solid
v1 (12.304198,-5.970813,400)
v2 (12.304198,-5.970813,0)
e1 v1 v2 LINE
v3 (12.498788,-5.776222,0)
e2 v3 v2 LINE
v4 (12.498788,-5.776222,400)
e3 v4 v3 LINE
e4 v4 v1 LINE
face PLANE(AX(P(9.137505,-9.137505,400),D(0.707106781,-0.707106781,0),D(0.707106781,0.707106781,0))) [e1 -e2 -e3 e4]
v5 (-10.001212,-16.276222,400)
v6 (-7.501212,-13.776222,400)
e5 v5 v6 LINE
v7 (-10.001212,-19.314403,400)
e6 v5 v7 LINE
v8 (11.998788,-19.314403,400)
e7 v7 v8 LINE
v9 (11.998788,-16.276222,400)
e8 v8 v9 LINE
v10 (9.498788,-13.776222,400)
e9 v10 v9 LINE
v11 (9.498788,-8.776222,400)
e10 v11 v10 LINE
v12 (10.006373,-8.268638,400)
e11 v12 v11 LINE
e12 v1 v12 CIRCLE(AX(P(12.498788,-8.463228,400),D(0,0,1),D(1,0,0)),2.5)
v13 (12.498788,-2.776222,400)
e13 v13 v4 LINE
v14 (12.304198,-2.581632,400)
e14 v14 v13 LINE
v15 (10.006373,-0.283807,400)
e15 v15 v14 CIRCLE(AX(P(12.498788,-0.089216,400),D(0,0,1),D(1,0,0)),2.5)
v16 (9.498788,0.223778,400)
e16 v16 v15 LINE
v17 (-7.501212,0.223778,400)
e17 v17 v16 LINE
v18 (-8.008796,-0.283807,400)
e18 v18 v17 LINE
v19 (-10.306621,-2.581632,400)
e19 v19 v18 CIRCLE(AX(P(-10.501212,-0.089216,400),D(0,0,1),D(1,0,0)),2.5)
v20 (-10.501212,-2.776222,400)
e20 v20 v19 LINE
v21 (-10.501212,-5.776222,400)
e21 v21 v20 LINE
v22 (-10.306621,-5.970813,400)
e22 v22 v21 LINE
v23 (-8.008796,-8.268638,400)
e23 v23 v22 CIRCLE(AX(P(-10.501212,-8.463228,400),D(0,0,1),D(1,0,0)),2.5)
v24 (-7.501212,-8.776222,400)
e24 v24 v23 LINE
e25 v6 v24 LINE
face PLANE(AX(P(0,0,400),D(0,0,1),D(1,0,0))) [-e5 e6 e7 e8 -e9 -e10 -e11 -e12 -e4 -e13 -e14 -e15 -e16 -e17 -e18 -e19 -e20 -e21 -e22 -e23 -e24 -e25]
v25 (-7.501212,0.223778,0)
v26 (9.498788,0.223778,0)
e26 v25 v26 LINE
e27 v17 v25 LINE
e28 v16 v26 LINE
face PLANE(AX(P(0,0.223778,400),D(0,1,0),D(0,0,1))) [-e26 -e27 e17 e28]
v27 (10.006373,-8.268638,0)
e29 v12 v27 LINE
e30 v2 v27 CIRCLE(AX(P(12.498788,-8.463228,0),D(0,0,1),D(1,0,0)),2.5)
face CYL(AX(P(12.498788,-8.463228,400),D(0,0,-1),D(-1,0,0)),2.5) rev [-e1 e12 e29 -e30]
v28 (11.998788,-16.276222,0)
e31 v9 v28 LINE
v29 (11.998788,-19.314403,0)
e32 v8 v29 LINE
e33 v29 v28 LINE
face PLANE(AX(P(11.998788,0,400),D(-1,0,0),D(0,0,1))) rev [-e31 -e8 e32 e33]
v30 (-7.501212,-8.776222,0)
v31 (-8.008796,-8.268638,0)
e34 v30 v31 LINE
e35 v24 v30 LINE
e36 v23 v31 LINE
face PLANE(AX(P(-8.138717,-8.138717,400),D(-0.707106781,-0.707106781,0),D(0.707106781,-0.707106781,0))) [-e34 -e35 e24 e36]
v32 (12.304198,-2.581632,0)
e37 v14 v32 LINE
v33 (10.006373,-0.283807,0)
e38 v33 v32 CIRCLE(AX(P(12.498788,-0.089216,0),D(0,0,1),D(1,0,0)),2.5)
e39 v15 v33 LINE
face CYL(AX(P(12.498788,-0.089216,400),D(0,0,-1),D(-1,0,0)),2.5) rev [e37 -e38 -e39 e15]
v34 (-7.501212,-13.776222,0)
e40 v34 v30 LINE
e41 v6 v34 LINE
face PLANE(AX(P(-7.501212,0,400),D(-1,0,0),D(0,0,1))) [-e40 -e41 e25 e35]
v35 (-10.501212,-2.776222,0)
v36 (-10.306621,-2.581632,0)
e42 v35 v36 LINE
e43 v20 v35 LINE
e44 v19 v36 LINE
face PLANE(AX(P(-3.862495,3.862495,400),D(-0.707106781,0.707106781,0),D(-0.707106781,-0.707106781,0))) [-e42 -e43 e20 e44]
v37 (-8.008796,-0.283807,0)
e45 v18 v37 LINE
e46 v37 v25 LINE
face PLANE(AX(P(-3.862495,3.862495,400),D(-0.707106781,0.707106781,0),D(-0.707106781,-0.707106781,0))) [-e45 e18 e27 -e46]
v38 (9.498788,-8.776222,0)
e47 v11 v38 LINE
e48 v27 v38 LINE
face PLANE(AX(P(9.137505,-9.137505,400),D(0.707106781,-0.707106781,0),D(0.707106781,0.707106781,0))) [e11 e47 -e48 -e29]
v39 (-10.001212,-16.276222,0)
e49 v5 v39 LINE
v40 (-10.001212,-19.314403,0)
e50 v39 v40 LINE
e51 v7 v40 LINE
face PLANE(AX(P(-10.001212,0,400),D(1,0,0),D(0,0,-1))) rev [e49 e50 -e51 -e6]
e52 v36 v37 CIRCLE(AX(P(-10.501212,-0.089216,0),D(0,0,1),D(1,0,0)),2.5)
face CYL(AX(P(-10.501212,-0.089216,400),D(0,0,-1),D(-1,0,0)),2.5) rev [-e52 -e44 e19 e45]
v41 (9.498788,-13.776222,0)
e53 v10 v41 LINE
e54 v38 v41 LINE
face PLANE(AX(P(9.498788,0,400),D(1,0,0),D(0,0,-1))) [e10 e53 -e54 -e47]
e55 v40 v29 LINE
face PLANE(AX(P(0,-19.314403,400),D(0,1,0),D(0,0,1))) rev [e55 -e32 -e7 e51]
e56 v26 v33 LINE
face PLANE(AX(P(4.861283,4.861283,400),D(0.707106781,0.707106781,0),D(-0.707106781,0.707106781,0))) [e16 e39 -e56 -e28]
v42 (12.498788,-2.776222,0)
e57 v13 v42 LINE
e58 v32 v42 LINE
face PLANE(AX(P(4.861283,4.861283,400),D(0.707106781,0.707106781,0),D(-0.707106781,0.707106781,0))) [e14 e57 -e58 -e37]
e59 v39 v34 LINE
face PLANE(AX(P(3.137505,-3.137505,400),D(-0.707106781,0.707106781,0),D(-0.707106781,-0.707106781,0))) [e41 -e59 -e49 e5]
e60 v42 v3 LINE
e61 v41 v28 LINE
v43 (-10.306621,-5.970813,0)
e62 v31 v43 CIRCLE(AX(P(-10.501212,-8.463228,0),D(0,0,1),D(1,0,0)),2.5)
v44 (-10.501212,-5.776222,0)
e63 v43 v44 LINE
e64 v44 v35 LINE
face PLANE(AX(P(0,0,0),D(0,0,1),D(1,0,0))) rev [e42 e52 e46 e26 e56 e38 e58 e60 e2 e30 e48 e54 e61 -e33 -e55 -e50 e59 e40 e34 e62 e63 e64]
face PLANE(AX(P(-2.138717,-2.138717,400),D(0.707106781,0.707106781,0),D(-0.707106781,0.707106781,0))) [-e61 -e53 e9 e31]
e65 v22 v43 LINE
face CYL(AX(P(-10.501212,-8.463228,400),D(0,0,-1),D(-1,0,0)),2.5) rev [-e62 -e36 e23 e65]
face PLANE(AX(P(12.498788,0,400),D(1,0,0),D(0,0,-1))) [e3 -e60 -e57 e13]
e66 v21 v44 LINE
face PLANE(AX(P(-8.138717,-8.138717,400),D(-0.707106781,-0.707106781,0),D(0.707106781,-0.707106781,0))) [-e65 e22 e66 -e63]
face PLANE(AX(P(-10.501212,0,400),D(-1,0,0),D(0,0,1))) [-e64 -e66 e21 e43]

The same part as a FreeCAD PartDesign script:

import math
import FreeCAD as App
import Part
import Sketcher
from FreeCAD import Vector
Q = App.Units.Quantity

doc = App.newDocument("Part")
params = doc.addObject("Spreadsheet::Sheet", "Params")
for row, (alias, value) in enumerate([
    ("sketch1_radius", "2.5 mm"),
    ("sketch1_width", "22 mm"),
    ("sketch1_width2", "17 mm"),
    ("sketch1_height", "5 mm"),
    ("sketch1_height2", "3 mm"),
    ("pad1_length", "400 mm"),
], start=1):
    params.set(f"A{row}", alias)
    params.set(f"B{row}", "=" + value)
    params.setAlias(f"B{row}", alias)

body = doc.addObject("PartDesign::Body", "Body")

# Sketch on XY plane
sketch1 = body.newObject("Sketcher::SketchObject", "Sketch")
sketch1.AttachmentSupport = (doc.getObject("XY_Plane"), [""])
sketch1.MapMode = "FlatFace"
sketch1.addGeometry([
    Part.LineSegment(Vector(-7.5, -13.78, 0), Vector(-10, -16.28, 0)),  # 0
    Part.LineSegment(Vector(-10, -16.28, 0), Vector(-10, -19.31, 0)),  # 1
    Part.LineSegment(Vector(-10, -19.31, 0), Vector(12, -19.31, 0)),  # 2
    Part.LineSegment(Vector(12, -19.31, 0), Vector(12, -16.28, 0)),  # 3
    Part.LineSegment(Vector(12, -16.28, 0), Vector(9.5, -13.78, 0)),  # 4
    Part.LineSegment(Vector(9.5, -13.78, 0), Vector(9.5, -8.78, 0)),  # 5
    Part.LineSegment(Vector(9.5, -8.78, 0), Vector(10.01, -8.27, 0)),  # 6
    Part.ArcOfCircle(Part.Circle(Vector(12.5, -8.46, 0), Vector(0, 0, 1), 2.5), math.radians(94), math.radians(176)),  # 7
    Part.LineSegment(Vector(12.3, -5.97, 0), Vector(12.5, -5.78, 0)),  # 8
    Part.LineSegment(Vector(12.5, -5.78, 0), Vector(12.5, -2.78, 0)),  # 9
    Part.LineSegment(Vector(12.5, -2.78, 0), Vector(12.3, -2.58, 0)),  # 10
    Part.ArcOfCircle(Part.Circle(Vector(12.5, -0.09, 0), Vector(0, 0, 1), 2.5), math.radians(-176), math.radians(-94)),  # 11
    Part.LineSegment(Vector(10.01, -0.28, 0), Vector(9.5, 0.22, 0)),  # 12
    Part.LineSegment(Vector(9.5, 0.22, 0), Vector(-7.5, 0.22, 0)),  # 13
    Part.LineSegment(Vector(-7.5, 0.22, 0), Vector(-8.01, -0.28, 0)),  # 14
    Part.ArcOfCircle(Part.Circle(Vector(-10.5, -0.09, 0), Vector(0, 0, 1), 2.5), math.radians(-86), math.radians(-4)),  # 15
    Part.LineSegment(Vector(-10.31, -2.58, 0), Vector(-10.5, -2.78, 0)),  # 16
    Part.LineSegment(Vector(-10.5, -2.78, 0), Vector(-10.5, -5.78, 0)),  # 17
    Part.LineSegment(Vector(-10.5, -5.78, 0), Vector(-10.31, -5.97, 0)),  # 18
    Part.ArcOfCircle(Part.Circle(Vector(-10.5, -8.46, 0), Vector(0, 0, 1), 2.5), math.radians(4), math.radians(86)),  # 19
    Part.LineSegment(Vector(-8.01, -8.27, 0), Vector(-7.5, -8.78, 0)),  # 20
    Part.LineSegment(Vector(-7.5, -8.78, 0), Vector(-7.5, -13.78, 0)),  # 21
], False)
sketch1.addConstraint([
    Sketcher.Constraint("Coincident", 0, 2, 1, 1),
    Sketcher.Constraint("Coincident", 1, 2, 2, 1),
    Sketcher.Constraint("Coincident", 2, 2, 3, 1),
    Sketcher.Constraint("Coincident", 3, 2, 4, 1),
    Sketcher.Constraint("Coincident", 4, 2, 5, 1),
    Sketcher.Constraint("Coincident", 5, 2, 6, 1),
    Sketcher.Constraint("Coincident", 6, 2, 7, 2),
    Sketcher.Constraint("Coincident", 7, 1, 8, 1),
    Sketcher.Constraint("Coincident", 8, 2, 9, 1),
    Sketcher.Constraint("Coincident", 9, 2, 10, 1),
    Sketcher.Constraint("Coincident", 10, 2, 11, 2),
    Sketcher.Constraint("Coincident", 11, 1, 12, 1),
    Sketcher.Constraint("Coincident", 12, 2, 13, 1),
    Sketcher.Constraint("Coincident", 13, 2, 14, 1),
    Sketcher.Constraint("Coincident", 14, 2, 15, 2),
    Sketcher.Constraint("Coincident", 15, 1, 16, 1),
    Sketcher.Constraint("Coincident", 16, 2, 17, 1),
    Sketcher.Constraint("Coincident", 17, 2, 18, 1),
    Sketcher.Constraint("Coincident", 18, 2, 19, 2),
    Sketcher.Constraint("Coincident", 19, 1, 20, 1),
    Sketcher.Constraint("Coincident", 20, 2, 21, 1),
    Sketcher.Constraint("Coincident", 21, 2, 0, 1),
    Sketcher.Constraint("Vertical", 1),
    Sketcher.Constraint("Horizontal", 2),
    Sketcher.Constraint("Vertical", 3),
    Sketcher.Constraint("Vertical", 5),
    Sketcher.Constraint("Vertical", 9),
    Sketcher.Constraint("Horizontal", 13),
    Sketcher.Constraint("Vertical", 17),
    Sketcher.Constraint("Vertical", 21),
    Sketcher.Constraint("Equal", 7, 11),
    Sketcher.Constraint("Equal", 11, 15),
    Sketcher.Constraint("Equal", 15, 19),
    Sketcher.Constraint("Perpendicular", 0, 4),
    Sketcher.Constraint("Perpendicular", 4, 6),
    Sketcher.Constraint("Parallel", 6, 8),
    Sketcher.Constraint("Perpendicular", 8, 10),
    Sketcher.Constraint("Parallel", 10, 12),
    Sketcher.Constraint("Perpendicular", 12, 14),
    Sketcher.Constraint("Parallel", 14, 16),
    Sketcher.Constraint("Perpendicular", 16, 18),
    Sketcher.Constraint("Parallel", 18, 20),
    Sketcher.Constraint("Horizontal", 11, 3, 15, 3),
    Sketcher.Constraint("Horizontal", 7, 3, 19, 3),
    Sketcher.Constraint("Horizontal", 0, 2, 3, 2),
    Sketcher.Constraint("Horizontal", 11, 1, 14, 2),
    Sketcher.Constraint("Horizontal", 10, 2, 15, 1),
    Sketcher.Constraint("Horizontal", 9, 2, 16, 2),
    Sketcher.Constraint("Horizontal", 8, 2, 17, 2),
    Sketcher.Constraint("Horizontal", 7, 1, 18, 2),
    Sketcher.Constraint("Horizontal", 6, 2, 19, 1),
    Sketcher.Constraint("Horizontal", 5, 2, 20, 2),
    Sketcher.Constraint("Horizontal", 4, 2, 21, 2),
    Sketcher.Constraint("Vertical", 7, 3, 11, 3),
    Sketcher.Constraint("Vertical", 15, 3, 19, 3),
    Sketcher.Constraint("Vertical", 11, 3, 8, 2),
    Sketcher.Constraint("Vertical", 7, 1, 10, 2),
    Sketcher.Constraint("Vertical", 6, 2, 11, 1),
    Sketcher.Constraint("Vertical", 5, 2, 12, 2),
    Sketcher.Constraint("Radius", 7, Q("2.5 mm")),
    Sketcher.Constraint("DistanceX", 2, 1, 2, 2, Q("22 mm")),
    Sketcher.Constraint("DistanceX", 13, 2, 13, 1, Q("17 mm")),
    Sketcher.Constraint("DistanceY", 5, 1, 5, 2, Q("5 mm")),
    Sketcher.Constraint("DistanceY", 9, 1, 9, 2, Q("3 mm")),
    Sketcher.Constraint("DistanceX", 15, 3, 11, 3, Q("23 mm")),
    Sketcher.Constraint("DistanceY", 5, 2, 8, 2, Q("3 mm")),
    Sketcher.Constraint("DistanceY", 1, 2, 1, 1, Q("3.038181 mm")),
    Sketcher.Constraint("DistanceX", -1, 1, 7, 1, Q("12.304198 mm")),
    Sketcher.Constraint("DistanceX", -1, 1, 7, 3, Q("12.498788 mm")),
    Sketcher.Constraint("DistanceY", 10, 2, -1, 1, Q("2.581632 mm")),
])
sketch1.setExpression("Constraints[59]", "Params.sketch1_radius")
sketch1.setExpression("Constraints[60]", "Params.sketch1_width")
sketch1.setExpression("Constraints[61]", "Params.sketch1_width2")
sketch1.setExpression("Constraints[62]", "Params.sketch1_height")
sketch1.setExpression("Constraints[63]", "Params.sketch1_height2")
pad1 = body.newObject("PartDesign::Pad", "Pad")
pad1.Profile = sketch1
pad1.setExpression("Length", "Params.pad1_length")

doc.recompute()
